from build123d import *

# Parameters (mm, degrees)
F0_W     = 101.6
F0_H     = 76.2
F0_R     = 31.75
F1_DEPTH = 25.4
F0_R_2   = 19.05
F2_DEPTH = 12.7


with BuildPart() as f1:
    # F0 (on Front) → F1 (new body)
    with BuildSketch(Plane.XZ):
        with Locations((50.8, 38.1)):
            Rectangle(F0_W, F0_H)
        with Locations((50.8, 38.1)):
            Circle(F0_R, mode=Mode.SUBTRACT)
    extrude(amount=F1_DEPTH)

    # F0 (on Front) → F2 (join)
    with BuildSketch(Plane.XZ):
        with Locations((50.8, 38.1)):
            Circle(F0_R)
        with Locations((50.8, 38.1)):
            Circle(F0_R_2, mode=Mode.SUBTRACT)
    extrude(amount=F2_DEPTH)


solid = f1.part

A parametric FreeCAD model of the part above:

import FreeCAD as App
import Part
import Sketcher
from FreeCAD import Vector
Q = App.Units.Quantity


def add_polygon(sketch, points):
    """Adds a closed chain of lines whose ends are joined by coincident constraints."""
    first, n = sketch.GeometryCount, len(points)
    for a, b in zip(points, points[1:] + points[:1]):
        sketch.addGeometry(Part.LineSegment(App.Vector(*a, 0), App.Vector(*b, 0)), False)
    for i in range(n):
        sketch.addConstraint(Sketcher.Constraint("Coincident", first + i, 2, first + (i + 1) % n, 1))

doc = App.newDocument("Part")
params = doc.addObject("Spreadsheet::Sheet", "Params")
for row, (alias, value) in enumerate([
    ("sketch1_diameter", "2.5 in"),
    ("sketch1_width", "4 in"),
    ("sketch1_height", "3 in"),
    ("pad1_length", "1 in"),
    ("sketch2_diameter", "2.5 in"),
    ("sketch2_diameter2", "1.5 in"),
    ("pad2_length", "0.5 in"),
], start=1):
    params.set(f"A{row}", alias)
    params.set(f"B{row}", "=" + value)
    params.setAlias(f"B{row}", alias)

body = doc.addObject("PartDesign::Body", "Body")

# Sketch on XZ plane
sketch1 = body.newObject("Sketcher::SketchObject", "Sketch")
sketch1.AttachmentSupport = (doc.getObject("XZ_Plane"), [""])
sketch1.MapMode = "FlatFace"
add_polygon(sketch1, [(0, 76), (0, 0), (102, 0), (102, 76)])  # lines 0-3
sketch1.addGeometry(Part.Circle(Vector(51, 38, 0), Vector(0, 0, 1), 32), False)  # 4
sketch1.addConstraint(Sketcher.Constraint("Vertical", 0))
sketch1.addConstraint(Sketcher.Constraint("Horizontal", 1))
sketch1.addConstraint(Sketcher.Constraint("Vertical", 2))
sketch1.addConstraint(Sketcher.Constraint("Horizontal", 3))
sketch1.addConstraint(Sketcher.Constraint("Coincident", 0, 2, -1, 1))
sketch1.addConstraint(Sketcher.Constraint("Diameter", 4, Q("2.5 in")))
sketch1.addConstraint(Sketcher.Constraint("DistanceX", 1, 1, 1, 2, Q("4 in")))
sketch1.addConstraint(Sketcher.Constraint("DistanceY", 0, 2, 0, 1, Q("3 in")))
sketch1.addConstraint(Sketcher.Constraint("DistanceX", -1, 1, 4, 3, Q("2 in")))
sketch1.addConstraint(Sketcher.Constraint("DistanceY", -1, 1, 4, 3, Q("1.5 in")))
sketch1.setExpression("Constraints[9]", "Params.sketch1_diameter")
sketch1.setExpression("Constraints[10]", "Params.sketch1_width")
sketch1.setExpression("Constraints[11]", "Params.sketch1_height")
pad1 = body.newObject("PartDesign::Pad", "Pad")
pad1.Profile = sketch1
pad1.setExpression("Length", "Params.pad1_length")

# Sketch on XZ plane
sketch2 = body.newObject("Sketcher::SketchObject", "Sketch001")
sketch2.AttachmentSupport = (doc.getObject("XZ_Plane"), [""])
sketch2.MapMode = "FlatFace"
sketch2.addGeometry(Part.Circle(Vector(51, 38, 0), Vector(0, 0, 1), 32), False)
sketch2.addGeometry(Part.Circle(Vector(51, 38, 0), Vector(0, 0, 1), 19), False)
sketch2.addConstraint(Sketcher.Constraint("Coincident", 1, 3, 0, 3))
sketch2.addConstraint(Sketcher.Constraint("Diameter", 0, Q("2.5 in")))
sketch2.addConstraint(Sketcher.Constraint("Diameter", 1, Q("1.5 in")))
sketch2.addConstraint(Sketcher.Constraint("DistanceX", -1, 1, 0, 3, Q("2 in")))
sketch2.addConstraint(Sketcher.Constraint("DistanceY", -1, 1, 0, 3, Q("1.5 in")))
sketch2.setExpression("Constraints[1]", "Params.sketch2_diameter")
sketch2.setExpression("Constraints[2]", "Params.sketch2_diameter2")
pad2 = body.newObject("PartDesign::Pad", "Pad001")
pad2.Profile = sketch2
pad2.setExpression("Length", "Params.pad2_length")

doc.recompute()
